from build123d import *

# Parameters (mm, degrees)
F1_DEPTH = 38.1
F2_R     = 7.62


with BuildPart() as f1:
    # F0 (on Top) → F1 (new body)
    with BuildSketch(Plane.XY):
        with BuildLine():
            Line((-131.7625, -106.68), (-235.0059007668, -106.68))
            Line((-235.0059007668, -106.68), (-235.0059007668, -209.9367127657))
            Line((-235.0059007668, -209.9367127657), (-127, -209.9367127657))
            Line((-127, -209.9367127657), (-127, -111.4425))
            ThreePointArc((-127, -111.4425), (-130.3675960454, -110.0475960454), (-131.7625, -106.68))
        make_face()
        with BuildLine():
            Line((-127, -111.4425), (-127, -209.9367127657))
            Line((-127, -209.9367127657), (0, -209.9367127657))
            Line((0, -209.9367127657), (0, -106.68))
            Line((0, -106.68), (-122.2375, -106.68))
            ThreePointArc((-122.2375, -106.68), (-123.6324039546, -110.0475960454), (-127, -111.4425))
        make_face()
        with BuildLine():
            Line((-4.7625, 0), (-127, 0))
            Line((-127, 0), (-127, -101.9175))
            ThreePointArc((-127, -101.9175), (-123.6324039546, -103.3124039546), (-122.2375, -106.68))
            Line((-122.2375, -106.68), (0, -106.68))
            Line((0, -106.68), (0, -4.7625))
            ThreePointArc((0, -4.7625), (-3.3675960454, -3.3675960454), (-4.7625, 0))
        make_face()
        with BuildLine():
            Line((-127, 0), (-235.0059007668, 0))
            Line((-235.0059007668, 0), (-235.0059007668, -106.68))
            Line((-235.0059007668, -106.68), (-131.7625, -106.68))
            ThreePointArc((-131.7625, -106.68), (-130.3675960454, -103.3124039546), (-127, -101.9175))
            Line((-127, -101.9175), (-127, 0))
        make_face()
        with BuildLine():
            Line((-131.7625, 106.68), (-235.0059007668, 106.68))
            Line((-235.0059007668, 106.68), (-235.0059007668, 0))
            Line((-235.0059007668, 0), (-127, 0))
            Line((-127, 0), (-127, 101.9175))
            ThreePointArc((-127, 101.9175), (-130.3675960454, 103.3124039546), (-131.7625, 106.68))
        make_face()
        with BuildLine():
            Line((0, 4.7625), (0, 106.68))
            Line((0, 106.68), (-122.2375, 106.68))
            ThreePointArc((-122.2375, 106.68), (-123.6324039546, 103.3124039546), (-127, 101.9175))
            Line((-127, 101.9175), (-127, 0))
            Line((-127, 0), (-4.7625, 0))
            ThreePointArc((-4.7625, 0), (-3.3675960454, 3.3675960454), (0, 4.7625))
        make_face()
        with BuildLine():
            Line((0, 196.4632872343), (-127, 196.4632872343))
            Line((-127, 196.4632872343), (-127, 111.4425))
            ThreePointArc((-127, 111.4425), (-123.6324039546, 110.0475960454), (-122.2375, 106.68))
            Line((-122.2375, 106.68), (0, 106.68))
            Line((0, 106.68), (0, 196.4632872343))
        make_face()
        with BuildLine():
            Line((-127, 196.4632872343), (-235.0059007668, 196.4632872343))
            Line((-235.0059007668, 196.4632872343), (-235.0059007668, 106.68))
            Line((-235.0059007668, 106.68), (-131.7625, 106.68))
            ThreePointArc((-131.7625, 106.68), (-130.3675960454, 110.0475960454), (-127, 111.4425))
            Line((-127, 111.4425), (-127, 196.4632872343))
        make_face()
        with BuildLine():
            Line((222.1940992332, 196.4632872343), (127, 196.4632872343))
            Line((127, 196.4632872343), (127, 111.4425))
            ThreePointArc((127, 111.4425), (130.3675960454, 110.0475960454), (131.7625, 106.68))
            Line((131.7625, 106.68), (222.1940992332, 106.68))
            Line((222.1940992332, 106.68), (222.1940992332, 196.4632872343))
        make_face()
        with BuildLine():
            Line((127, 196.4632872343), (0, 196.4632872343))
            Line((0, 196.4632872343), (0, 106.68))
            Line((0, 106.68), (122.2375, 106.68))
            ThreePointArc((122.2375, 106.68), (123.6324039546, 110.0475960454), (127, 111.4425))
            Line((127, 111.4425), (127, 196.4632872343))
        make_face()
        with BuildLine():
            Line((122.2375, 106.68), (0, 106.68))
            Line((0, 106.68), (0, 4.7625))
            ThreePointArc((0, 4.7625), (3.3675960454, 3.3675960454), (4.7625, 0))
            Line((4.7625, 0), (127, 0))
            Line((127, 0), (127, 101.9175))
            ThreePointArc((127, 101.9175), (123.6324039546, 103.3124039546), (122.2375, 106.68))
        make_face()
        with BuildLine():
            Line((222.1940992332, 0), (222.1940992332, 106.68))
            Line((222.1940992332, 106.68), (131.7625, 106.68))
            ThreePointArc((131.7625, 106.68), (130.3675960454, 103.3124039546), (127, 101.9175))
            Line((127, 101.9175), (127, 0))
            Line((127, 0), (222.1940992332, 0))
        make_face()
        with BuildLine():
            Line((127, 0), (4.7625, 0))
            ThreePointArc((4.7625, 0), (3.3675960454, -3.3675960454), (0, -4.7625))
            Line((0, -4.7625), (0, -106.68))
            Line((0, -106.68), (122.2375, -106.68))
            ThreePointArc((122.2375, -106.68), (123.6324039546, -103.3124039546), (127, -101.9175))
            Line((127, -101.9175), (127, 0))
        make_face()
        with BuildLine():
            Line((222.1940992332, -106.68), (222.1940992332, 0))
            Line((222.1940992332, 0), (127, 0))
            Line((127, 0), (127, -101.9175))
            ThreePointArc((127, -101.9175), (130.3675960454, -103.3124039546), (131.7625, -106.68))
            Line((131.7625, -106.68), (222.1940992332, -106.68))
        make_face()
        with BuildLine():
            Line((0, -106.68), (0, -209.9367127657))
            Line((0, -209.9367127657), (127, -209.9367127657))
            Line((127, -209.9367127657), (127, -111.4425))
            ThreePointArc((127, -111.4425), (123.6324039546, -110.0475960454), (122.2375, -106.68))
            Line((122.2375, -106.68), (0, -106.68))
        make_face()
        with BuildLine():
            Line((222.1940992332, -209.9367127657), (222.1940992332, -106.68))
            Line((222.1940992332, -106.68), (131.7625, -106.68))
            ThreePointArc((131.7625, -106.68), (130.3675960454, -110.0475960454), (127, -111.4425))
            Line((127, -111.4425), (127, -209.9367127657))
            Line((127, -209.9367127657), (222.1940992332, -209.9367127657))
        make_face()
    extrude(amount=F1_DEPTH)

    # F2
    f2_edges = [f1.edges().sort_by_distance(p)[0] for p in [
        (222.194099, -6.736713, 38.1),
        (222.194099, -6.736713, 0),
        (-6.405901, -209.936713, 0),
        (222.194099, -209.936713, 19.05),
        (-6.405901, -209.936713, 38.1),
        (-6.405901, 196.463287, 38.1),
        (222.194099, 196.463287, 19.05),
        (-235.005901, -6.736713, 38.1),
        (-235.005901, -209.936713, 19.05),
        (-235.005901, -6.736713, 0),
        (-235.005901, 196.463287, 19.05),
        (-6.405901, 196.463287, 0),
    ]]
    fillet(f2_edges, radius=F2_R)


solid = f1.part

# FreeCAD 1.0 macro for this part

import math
import FreeCAD as App
import Part
import Sketcher
from FreeCAD import Vector
Q = App.Units.Quantity


def edges_at(feature, points):
    """Names of the edges that pass closest to the given points."""
    edges = feature.Shape.Edges
    near = lambda p: min(range(len(edges)), key=lambda i: edges[i].distToShape(Part.Vertex(*p))[0])
    return sorted({f"Edge{near(p) + 1}" for p in points})


def add_polygon(sketch, points):
    """Adds a closed chain of lines whose ends are joined by coincident constraints."""
    first, n = sketch.GeometryCount, len(points)
    for a, b in zip(points, points[1:] + points[:1]):
        sketch.addGeometry(Part.LineSegment(App.Vector(*a, 0), App.Vector(*b, 0)), False)
    for i in range(n):
        sketch.addConstraint(Sketcher.Constraint("Coincident", first + i, 2, first + (i + 1) % n, 1))

doc = App.newDocument("Part")
params = doc.addObject("Spreadsheet::Sheet", "Params")
for row, (alias, value) in enumerate([
    ("sketch1_width", "18 in"),
    ("sketch1_height", "16 in"),
    ("sketch1_radius", "0.1875 in"),
    ("pad1_length", "1.5 in"),
    ("fillet_radius", "0.3 in"),
], start=1):
    params.set(f"A{row}", alias)
    params.set(f"B{row}", "=" + value)
    params.setAlias(f"B{row}", alias)

body = doc.addObject("PartDesign::Body", "Body")

# Sketch on XY plane
sketch1 = body.newObject("Sketcher::SketchObject", "Sketch")
sketch1.AttachmentSupport = (doc.getObject("XY_Plane"), [""])
sketch1.MapMode = "FlatFace"
add_polygon(sketch1, [(-235, -209.9), (222.2, -209.9), (222.2, 196.5), (-235, 196.5)])  # lines 0-3
sketch1.addGeometry(Part.ArcOfCircle(Part.Circle(Vector(127, -106.7, 0), Vector(0, 0, 1), 4.8), math.radians(180), math.radians(270)), False)  # 4
sketch1.addGeometry(Part.ArcOfCircle(Part.Circle(Vector(127, -106.7, 0), Vector(0, 0, 1), 4.8), math.radians(90), math.radians(180)), False)  # 5
sketch1.addGeometry(Part.ArcOfCircle(Part.Circle(Vector(127, -106.7, 0), Vector(0, 0, 1), 4.8), math.radians(0), math.radians(90)), False)  # 6
sketch1.addGeometry(Part.ArcOfCircle(Part.Circle(Vector(127, -106.7, 0), Vector(0, 0, 1), 4.8), math.radians(-90), math.radians(0)), False)  # 7
sketch1.addGeometry(Part.ArcOfCircle(Part.Circle(Vector(0, 0, 0), Vector(0, 0, 1), 4.8), math.radians(180), math.radians(270)), False)  # 8
sketch1.addGeometry(Part.ArcOfCircle(Part.Circle(Vector(0, 0, 0), Vector(0, 0, 1), 4.8), math.radians(90), math.radians(180)), False)  # 9
sketch1.addGeometry(Part.ArcOfCircle(Part.Circle(Vector(0, 0, 0), Vector(0, 0, 1), 4.8), math.radians(0), math.radians(90)), False)  # 10
sketch1.addGeometry(Part.ArcOfCircle(Part.Circle(Vector(0, 0, 0), Vector(0, 0, 1), 4.8), math.radians(-90), math.radians(0)), False)  # 11
sketch1.addGeometry(Part.ArcOfCircle(Part.Circle(Vector(127, 106.7, 0), Vector(0, 0, 1), 4.8), math.radians(180), math.radians(270)), False)  # 12
sketch1.addGeometry(Part.ArcOfCircle(Part.Circle(Vector(127, 106.7, 0), Vector(0, 0, 1), 4.8), math.radians(90), math.radians(180)), False)  # 13
sketch1.addGeometry(Part.ArcOfCircle(Part.Circle(Vector(127, 106.7, 0), Vector(0, 0, 1), 4.8), math.radians(0), math.radians(90)), False)  # 14
sketch1.addGeometry(Part.ArcOfCircle(Part.Circle(Vector(127, 106.7, 0), Vector(0, 0, 1), 4.8), math.radians(-90), math.radians(0)), False)  # 15
sketch1.addGeometry(Part.ArcOfCircle(Part.Circle(Vector(-127, 106.7, 0), Vector(0, 0, 1), 4.8), math.radians(0), math.radians(90)), False)  # 16
sketch1.addGeometry(Part.ArcOfCircle(Part.Circle(Vector(-127, 106.7, 0), Vector(0, 0, 1), 4.8), math.radians(-90), math.radians(0)), False)  # 17
sketch1.addGeometry(Part.ArcOfCircle(Part.Circle(Vector(-127, 106.7, 0), Vector(0, 0, 1), 4.8), math.radians(180), math.radians(270)), False)  # 18
sketch1.addGeometry(Part.ArcOfCircle(Part.Circle(Vector(-127, 106.7, 0), Vector(0, 0, 1), 4.8), math.radians(90), math.radians(180)), False)  # 19
sketch1.addGeometry(Part.ArcOfCircle(Part.Circle(Vector(-127, -106.7, 0), Vector(0, 0, 1), 4.8), math.radians(0), math.radians(90)), False)  # 20
sketch1.addGeometry(Part.ArcOfCircle(Part.Circle(Vector(-127, -106.7, 0), Vector(0, 0, 1), 4.8), math.radians(-90), math.radians(0)), False)  # 21
sketch1.addGeometry(Part.ArcOfCircle(Part.Circle(Vector(-127, -106.7, 0), Vector(0, 0, 1), 4.8), math.radians(180), math.radians(270)), False)  # 22
sketch1.addGeometry(Part.ArcOfCircle(Part.Circle(Vector(-127, -106.7, 0), Vector(0, 0, 1), 4.8), math.radians(90), math.radians(180)), False)  # 23
sketch1.addConstraint(Sketcher.Constraint("Tangent", 4, 1, 5, 2))
sketch1.addConstraint(Sketcher.Constraint("Tangent", 5, 1, 6, 2))
sketch1.addConstraint(Sketcher.Constraint("Tangent", 6, 1, 7, 2))
sketch1.addConstraint(Sketcher.Constraint("Tangent", 7, 1, 4, 2))
sketch1.addConstraint(Sketcher.Constraint("Tangent", 8, 1, 9, 2))
sketch1.addConstraint(Sketcher.Constraint("Tangent", 9, 1, 10, 2))
sketch1.addConstraint(Sketcher.Constraint("Tangent", 10, 1, 11, 2))
sketch1.addConstraint(Sketcher.Constraint("Tangent", 11, 1, 8, 2))
sketch1.addConstraint(Sketcher.Constraint("Tangent", 12, 1, 13, 2))
sketch1.addConstraint(Sketcher.Constraint("Tangent", 13, 1, 14, 2))
sketch1.addConstraint(Sketcher.Constraint("Tangent", 14, 1, 15, 2))
sketch1.addConstraint(Sketcher.Constraint("Tangent", 15, 1, 12, 2))
sketch1.addConstraint(Sketcher.Constraint("Tangent", 16, 1, 17, 2))
sketch1.addConstraint(Sketcher.Constraint("Tangent", 17, 1, 18, 2))
sketch1.addConstraint(Sketcher.Constraint("Tangent", 18, 1, 19, 2))
sketch1.addConstraint(Sketcher.Constraint("Tangent", 19, 1, 16, 2))
sketch1.addConstraint(Sketcher.Constraint("Tangent", 20, 1, 21, 2))
sketch1.addConstraint(Sketcher.Constraint("Tangent", 21, 1, 22, 2))
sketch1.addConstraint(Sketcher.Constraint("Tangent", 22, 1, 23, 2))
sketch1.addConstraint(Sketcher.Constraint("Tangent", 23, 1, 20, 2))
sketch1.addConstraint(Sketcher.Constraint("Horizontal", 0))
sketch1.addConstraint(Sketcher.Constraint("Vertical", 1))
sketch1.addConstraint(Sketcher.Constraint("Horizontal", 2))
sketch1.addConstraint(Sketcher.Constraint("Vertical", 3))
sketch1.addConstraint(Sketcher.Constraint("Coincident", 8, 3, -1, 1))
sketch1.addConstraint(Sketcher.Constraint("Equal", 4, 5))
sketch1.addConstraint(Sketcher.Constraint("Equal", 7, 8))
sketch1.addConstraint(Sketcher.Constraint("Equal", 8, 9))
sketch1.addConstraint(Sketcher.Constraint("Equal", 11, 12))
sketch1.addConstraint(Sketcher.Constraint("Equal", 12, 13))
sketch1.addConstraint(Sketcher.Constraint("Equal", 15, 16))
sketch1.addConstraint(Sketcher.Constraint("Equal", 16, 17))
sketch1.addConstraint(Sketcher.Constraint("Equal", 19, 20))
sketch1.addConstraint(Sketcher.Constraint("Equal", 20, 21))
sketch1.addConstraint(Sketcher.Constraint("Symmetric", 4, 3, 16, 3, -1, 1))
sketch1.addConstraint(Sketcher.Constraint("Symmetric", 12, 3, 20, 3, -1, 1))
sketch1.addConstraint(Sketcher.Constraint("Symmetric", 12, 3, 16, 3, -2))
sketch1.addConstraint(Sketcher.Constraint("PointOnObject", 8, 1, -1))
sketch1.addConstraint(Sketcher.Constraint("PointOnObject", 9, 1, -2))
sketch1.addConstraint(Sketcher.Constraint("PointOnObject", 10, 1, -1))
sketch1.addConstraint(Sketcher.Constraint("PointOnObject", 11, 1, -2))
sketch1.addConstraint(Sketcher.Constraint("Horizontal", 23, 3, 4, 1))
sketch1.addConstraint(Sketcher.Constraint("Horizontal", 4, 1, 6, 1))
sketch1.addConstraint(Sketcher.Constraint("Horizontal", 19, 3, 12, 1))
sketch1.addConstraint(Sketcher.Constraint("Horizontal", 12, 1, 14, 1))
sketch1.addConstraint(Sketcher.Constraint("Horizontal", 14, 1, 16, 1))
sketch1.addConstraint(Sketcher.Constraint("Horizontal", 16, 1, 18, 1))
sketch1.addConstraint(Sketcher.Constraint("Horizontal", 6, 1, 20, 1))
sketch1.addConstraint(Sketcher.Constraint("Horizontal", 20, 1, 22, 1))
sketch1.addConstraint(Sketcher.Constraint("Vertical", 15, 3, 5, 1))
sketch1.addConstraint(Sketcher.Constraint("Vertical", 5, 1, 7, 1))
sketch1.addConstraint(Sketcher.Constraint("Vertical", 7, 1, 13, 1))
sketch1.addConstraint(Sketcher.Constraint("Vertical", 13, 1, 15, 1))
sketch1.addConstraint(Sketcher.Constraint("Vertical", 23, 3, 17, 1))
sketch1.addConstraint(Sketcher.Constraint("Vertical", 17, 1, 19, 1))
sketch1.addConstraint(Sketcher.Constraint("Vertical", 19, 1, 21, 1))
sketch1.addConstraint(Sketcher.Constraint("Vertical", 21, 1, 23, 1))
sketch1.addConstraint(Sketcher.Constraint("DistanceX", 0, 1, 0, 2, Q("18 in")))
sketch1.addConstraint(Sketcher.Constraint("DistanceY", 1, 1, 1, 2, Q("16 in")))
sketch1.addConstraint(Sketcher.Constraint("DistanceX", -1, 1, 4, 3, Q("5 in")))
sketch1.addConstraint(Sketcher.Constraint("Radius", 4, Q("0.1875 in")))
sketch1.addConstraint(Sketcher.Constraint("DistanceY", 4, 3, -1, 1, Q("4.2 in")))
sketch1.addConstraint(Sketcher.Constraint("DistanceX", -1, 1, 0, 2, Q("222.194099 mm")))
sketch1.addConstraint(Sketcher.Constraint("DistanceY", 0, 2, -1, 1, Q("209.936713 mm")))
sketch1.setExpression("Constraints[61]", "Params.sketch1_width")
sketch1.setExpression("Constraints[62]", "Params.sketch1_height")
sketch1.setExpression("Constraints[64]", "Params.sketch1_radius")
pad1 = body.newObject("PartDesign::Pad", "Pad")
pad1.Profile = sketch1
pad1.setExpression("Length", "Params.pad1_length")
doc.recompute()

fillet = body.newObject("PartDesign::Fillet", "Fillet")
fillet.Base = (pad1, edges_at(pad1, [
    (222.194, -6.737, 38.1),
    (222.194, -6.737, 0),
    (-6.406, -209.937, 0),
    (222.194, -209.937, 19.05),
    (-6.406, -209.937, 38.1),
    (-6.406, 196.463, 38.1),
    (222.194, 196.463, 19.05),
    (-235.006, -6.737, 38.1),
    (-235.006, -209.937, 19.05),
    (-235.006, -6.737, 0),
    (-235.006, 196.463, 19.05),
    (-6.406, 196.463, 0),
]))
fillet.setExpression("Radius", "Params.fillet_radius")

doc.recompute()
